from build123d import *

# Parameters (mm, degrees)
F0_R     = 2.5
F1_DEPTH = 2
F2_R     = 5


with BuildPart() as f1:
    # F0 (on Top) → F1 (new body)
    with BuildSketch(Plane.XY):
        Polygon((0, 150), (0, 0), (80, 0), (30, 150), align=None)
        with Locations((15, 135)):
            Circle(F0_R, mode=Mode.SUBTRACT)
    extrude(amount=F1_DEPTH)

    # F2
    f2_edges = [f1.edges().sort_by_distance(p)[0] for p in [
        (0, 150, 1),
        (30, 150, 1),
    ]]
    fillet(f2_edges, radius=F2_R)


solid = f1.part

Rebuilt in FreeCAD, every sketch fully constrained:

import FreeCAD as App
import Part
import Sketcher
Q = App.Units.Quantity


def edges_at(feature, points):
    """Names of the edges that pass closest to the given points."""
    edges = feature.Shape.Edges
    near = lambda p: min(range(len(edges)), key=lambda i: edges[i].distToShape(Part.Vertex(*p))[0])
    return sorted({f"Edge{near(p) + 1}" for p in points})


def add_polygon(sketch, points):
    """Adds a closed chain of lines whose ends are joined by coincident constraints."""
    first, n = sketch.GeometryCount, len(points)
    for a, b in zip(points, points[1:] + points[:1]):
        sketch.addGeometry(Part.LineSegment(App.Vector(*a, 0), App.Vector(*b, 0)), False)
    for i in range(n):
        sketch.addConstraint(Sketcher.Constraint("Coincident", first + i, 2, first + (i + 1) % n, 1))

doc = App.newDocument("Part")
body = doc.addObject("PartDesign::Body", "Body")

# Sketch on XY plane
sketch1 = body.newObject("Sketcher::SketchObject", "Sketch")
sketch1.AttachmentSupport = (doc.getObject("XY_Plane"), [""])
sketch1.MapMode = "FlatFace"
add_polygon(sketch1, [(0, 150), (0, 0), (80, 0), (30, 150)])  # lines 0-3
sketch1.addGeometry(Part.Circle(App.Vector(15, 135, 0), App.Vector(0, 0, 1), 2.5), False)  # 4
sketch1.addConstraint([
    Sketcher.Constraint("Vertical", 0),
    Sketcher.Constraint("Horizontal", 1),
    Sketcher.Constraint("Horizontal", 3),
    Sketcher.Constraint("Coincident", 0, 2, -1, 1),
    Sketcher.Constraint("Diameter", 4, Q("5 mm")),
    Sketcher.Constraint("DistanceX", 1, 1, 1, 2, Q("80 mm")),
    Sketcher.Constraint("DistanceX", 3, 2, 3, 1, Q("30 mm")),
    Sketcher.Constraint("DistanceY", 0, 2, 0, 1, Q("150 mm")),
    Sketcher.Constraint("DistanceX", -1, 1, 4, 3, Q("15 mm")),
    Sketcher.Constraint("DistanceY", -1, 1, 4, 3, Q("135 mm")),
])
pad1 = body.newObject("PartDesign::Pad", "Pad")
pad1.Profile = sketch1
pad1.Length = 2
doc.recompute()

fillet = body.newObject("PartDesign::Fillet", "Fillet")
fillet.Base = (pad1, edges_at(pad1, [(0, 150, 1), (30, 150, 1)]))
fillet.Radius = 5

doc.recompute()
